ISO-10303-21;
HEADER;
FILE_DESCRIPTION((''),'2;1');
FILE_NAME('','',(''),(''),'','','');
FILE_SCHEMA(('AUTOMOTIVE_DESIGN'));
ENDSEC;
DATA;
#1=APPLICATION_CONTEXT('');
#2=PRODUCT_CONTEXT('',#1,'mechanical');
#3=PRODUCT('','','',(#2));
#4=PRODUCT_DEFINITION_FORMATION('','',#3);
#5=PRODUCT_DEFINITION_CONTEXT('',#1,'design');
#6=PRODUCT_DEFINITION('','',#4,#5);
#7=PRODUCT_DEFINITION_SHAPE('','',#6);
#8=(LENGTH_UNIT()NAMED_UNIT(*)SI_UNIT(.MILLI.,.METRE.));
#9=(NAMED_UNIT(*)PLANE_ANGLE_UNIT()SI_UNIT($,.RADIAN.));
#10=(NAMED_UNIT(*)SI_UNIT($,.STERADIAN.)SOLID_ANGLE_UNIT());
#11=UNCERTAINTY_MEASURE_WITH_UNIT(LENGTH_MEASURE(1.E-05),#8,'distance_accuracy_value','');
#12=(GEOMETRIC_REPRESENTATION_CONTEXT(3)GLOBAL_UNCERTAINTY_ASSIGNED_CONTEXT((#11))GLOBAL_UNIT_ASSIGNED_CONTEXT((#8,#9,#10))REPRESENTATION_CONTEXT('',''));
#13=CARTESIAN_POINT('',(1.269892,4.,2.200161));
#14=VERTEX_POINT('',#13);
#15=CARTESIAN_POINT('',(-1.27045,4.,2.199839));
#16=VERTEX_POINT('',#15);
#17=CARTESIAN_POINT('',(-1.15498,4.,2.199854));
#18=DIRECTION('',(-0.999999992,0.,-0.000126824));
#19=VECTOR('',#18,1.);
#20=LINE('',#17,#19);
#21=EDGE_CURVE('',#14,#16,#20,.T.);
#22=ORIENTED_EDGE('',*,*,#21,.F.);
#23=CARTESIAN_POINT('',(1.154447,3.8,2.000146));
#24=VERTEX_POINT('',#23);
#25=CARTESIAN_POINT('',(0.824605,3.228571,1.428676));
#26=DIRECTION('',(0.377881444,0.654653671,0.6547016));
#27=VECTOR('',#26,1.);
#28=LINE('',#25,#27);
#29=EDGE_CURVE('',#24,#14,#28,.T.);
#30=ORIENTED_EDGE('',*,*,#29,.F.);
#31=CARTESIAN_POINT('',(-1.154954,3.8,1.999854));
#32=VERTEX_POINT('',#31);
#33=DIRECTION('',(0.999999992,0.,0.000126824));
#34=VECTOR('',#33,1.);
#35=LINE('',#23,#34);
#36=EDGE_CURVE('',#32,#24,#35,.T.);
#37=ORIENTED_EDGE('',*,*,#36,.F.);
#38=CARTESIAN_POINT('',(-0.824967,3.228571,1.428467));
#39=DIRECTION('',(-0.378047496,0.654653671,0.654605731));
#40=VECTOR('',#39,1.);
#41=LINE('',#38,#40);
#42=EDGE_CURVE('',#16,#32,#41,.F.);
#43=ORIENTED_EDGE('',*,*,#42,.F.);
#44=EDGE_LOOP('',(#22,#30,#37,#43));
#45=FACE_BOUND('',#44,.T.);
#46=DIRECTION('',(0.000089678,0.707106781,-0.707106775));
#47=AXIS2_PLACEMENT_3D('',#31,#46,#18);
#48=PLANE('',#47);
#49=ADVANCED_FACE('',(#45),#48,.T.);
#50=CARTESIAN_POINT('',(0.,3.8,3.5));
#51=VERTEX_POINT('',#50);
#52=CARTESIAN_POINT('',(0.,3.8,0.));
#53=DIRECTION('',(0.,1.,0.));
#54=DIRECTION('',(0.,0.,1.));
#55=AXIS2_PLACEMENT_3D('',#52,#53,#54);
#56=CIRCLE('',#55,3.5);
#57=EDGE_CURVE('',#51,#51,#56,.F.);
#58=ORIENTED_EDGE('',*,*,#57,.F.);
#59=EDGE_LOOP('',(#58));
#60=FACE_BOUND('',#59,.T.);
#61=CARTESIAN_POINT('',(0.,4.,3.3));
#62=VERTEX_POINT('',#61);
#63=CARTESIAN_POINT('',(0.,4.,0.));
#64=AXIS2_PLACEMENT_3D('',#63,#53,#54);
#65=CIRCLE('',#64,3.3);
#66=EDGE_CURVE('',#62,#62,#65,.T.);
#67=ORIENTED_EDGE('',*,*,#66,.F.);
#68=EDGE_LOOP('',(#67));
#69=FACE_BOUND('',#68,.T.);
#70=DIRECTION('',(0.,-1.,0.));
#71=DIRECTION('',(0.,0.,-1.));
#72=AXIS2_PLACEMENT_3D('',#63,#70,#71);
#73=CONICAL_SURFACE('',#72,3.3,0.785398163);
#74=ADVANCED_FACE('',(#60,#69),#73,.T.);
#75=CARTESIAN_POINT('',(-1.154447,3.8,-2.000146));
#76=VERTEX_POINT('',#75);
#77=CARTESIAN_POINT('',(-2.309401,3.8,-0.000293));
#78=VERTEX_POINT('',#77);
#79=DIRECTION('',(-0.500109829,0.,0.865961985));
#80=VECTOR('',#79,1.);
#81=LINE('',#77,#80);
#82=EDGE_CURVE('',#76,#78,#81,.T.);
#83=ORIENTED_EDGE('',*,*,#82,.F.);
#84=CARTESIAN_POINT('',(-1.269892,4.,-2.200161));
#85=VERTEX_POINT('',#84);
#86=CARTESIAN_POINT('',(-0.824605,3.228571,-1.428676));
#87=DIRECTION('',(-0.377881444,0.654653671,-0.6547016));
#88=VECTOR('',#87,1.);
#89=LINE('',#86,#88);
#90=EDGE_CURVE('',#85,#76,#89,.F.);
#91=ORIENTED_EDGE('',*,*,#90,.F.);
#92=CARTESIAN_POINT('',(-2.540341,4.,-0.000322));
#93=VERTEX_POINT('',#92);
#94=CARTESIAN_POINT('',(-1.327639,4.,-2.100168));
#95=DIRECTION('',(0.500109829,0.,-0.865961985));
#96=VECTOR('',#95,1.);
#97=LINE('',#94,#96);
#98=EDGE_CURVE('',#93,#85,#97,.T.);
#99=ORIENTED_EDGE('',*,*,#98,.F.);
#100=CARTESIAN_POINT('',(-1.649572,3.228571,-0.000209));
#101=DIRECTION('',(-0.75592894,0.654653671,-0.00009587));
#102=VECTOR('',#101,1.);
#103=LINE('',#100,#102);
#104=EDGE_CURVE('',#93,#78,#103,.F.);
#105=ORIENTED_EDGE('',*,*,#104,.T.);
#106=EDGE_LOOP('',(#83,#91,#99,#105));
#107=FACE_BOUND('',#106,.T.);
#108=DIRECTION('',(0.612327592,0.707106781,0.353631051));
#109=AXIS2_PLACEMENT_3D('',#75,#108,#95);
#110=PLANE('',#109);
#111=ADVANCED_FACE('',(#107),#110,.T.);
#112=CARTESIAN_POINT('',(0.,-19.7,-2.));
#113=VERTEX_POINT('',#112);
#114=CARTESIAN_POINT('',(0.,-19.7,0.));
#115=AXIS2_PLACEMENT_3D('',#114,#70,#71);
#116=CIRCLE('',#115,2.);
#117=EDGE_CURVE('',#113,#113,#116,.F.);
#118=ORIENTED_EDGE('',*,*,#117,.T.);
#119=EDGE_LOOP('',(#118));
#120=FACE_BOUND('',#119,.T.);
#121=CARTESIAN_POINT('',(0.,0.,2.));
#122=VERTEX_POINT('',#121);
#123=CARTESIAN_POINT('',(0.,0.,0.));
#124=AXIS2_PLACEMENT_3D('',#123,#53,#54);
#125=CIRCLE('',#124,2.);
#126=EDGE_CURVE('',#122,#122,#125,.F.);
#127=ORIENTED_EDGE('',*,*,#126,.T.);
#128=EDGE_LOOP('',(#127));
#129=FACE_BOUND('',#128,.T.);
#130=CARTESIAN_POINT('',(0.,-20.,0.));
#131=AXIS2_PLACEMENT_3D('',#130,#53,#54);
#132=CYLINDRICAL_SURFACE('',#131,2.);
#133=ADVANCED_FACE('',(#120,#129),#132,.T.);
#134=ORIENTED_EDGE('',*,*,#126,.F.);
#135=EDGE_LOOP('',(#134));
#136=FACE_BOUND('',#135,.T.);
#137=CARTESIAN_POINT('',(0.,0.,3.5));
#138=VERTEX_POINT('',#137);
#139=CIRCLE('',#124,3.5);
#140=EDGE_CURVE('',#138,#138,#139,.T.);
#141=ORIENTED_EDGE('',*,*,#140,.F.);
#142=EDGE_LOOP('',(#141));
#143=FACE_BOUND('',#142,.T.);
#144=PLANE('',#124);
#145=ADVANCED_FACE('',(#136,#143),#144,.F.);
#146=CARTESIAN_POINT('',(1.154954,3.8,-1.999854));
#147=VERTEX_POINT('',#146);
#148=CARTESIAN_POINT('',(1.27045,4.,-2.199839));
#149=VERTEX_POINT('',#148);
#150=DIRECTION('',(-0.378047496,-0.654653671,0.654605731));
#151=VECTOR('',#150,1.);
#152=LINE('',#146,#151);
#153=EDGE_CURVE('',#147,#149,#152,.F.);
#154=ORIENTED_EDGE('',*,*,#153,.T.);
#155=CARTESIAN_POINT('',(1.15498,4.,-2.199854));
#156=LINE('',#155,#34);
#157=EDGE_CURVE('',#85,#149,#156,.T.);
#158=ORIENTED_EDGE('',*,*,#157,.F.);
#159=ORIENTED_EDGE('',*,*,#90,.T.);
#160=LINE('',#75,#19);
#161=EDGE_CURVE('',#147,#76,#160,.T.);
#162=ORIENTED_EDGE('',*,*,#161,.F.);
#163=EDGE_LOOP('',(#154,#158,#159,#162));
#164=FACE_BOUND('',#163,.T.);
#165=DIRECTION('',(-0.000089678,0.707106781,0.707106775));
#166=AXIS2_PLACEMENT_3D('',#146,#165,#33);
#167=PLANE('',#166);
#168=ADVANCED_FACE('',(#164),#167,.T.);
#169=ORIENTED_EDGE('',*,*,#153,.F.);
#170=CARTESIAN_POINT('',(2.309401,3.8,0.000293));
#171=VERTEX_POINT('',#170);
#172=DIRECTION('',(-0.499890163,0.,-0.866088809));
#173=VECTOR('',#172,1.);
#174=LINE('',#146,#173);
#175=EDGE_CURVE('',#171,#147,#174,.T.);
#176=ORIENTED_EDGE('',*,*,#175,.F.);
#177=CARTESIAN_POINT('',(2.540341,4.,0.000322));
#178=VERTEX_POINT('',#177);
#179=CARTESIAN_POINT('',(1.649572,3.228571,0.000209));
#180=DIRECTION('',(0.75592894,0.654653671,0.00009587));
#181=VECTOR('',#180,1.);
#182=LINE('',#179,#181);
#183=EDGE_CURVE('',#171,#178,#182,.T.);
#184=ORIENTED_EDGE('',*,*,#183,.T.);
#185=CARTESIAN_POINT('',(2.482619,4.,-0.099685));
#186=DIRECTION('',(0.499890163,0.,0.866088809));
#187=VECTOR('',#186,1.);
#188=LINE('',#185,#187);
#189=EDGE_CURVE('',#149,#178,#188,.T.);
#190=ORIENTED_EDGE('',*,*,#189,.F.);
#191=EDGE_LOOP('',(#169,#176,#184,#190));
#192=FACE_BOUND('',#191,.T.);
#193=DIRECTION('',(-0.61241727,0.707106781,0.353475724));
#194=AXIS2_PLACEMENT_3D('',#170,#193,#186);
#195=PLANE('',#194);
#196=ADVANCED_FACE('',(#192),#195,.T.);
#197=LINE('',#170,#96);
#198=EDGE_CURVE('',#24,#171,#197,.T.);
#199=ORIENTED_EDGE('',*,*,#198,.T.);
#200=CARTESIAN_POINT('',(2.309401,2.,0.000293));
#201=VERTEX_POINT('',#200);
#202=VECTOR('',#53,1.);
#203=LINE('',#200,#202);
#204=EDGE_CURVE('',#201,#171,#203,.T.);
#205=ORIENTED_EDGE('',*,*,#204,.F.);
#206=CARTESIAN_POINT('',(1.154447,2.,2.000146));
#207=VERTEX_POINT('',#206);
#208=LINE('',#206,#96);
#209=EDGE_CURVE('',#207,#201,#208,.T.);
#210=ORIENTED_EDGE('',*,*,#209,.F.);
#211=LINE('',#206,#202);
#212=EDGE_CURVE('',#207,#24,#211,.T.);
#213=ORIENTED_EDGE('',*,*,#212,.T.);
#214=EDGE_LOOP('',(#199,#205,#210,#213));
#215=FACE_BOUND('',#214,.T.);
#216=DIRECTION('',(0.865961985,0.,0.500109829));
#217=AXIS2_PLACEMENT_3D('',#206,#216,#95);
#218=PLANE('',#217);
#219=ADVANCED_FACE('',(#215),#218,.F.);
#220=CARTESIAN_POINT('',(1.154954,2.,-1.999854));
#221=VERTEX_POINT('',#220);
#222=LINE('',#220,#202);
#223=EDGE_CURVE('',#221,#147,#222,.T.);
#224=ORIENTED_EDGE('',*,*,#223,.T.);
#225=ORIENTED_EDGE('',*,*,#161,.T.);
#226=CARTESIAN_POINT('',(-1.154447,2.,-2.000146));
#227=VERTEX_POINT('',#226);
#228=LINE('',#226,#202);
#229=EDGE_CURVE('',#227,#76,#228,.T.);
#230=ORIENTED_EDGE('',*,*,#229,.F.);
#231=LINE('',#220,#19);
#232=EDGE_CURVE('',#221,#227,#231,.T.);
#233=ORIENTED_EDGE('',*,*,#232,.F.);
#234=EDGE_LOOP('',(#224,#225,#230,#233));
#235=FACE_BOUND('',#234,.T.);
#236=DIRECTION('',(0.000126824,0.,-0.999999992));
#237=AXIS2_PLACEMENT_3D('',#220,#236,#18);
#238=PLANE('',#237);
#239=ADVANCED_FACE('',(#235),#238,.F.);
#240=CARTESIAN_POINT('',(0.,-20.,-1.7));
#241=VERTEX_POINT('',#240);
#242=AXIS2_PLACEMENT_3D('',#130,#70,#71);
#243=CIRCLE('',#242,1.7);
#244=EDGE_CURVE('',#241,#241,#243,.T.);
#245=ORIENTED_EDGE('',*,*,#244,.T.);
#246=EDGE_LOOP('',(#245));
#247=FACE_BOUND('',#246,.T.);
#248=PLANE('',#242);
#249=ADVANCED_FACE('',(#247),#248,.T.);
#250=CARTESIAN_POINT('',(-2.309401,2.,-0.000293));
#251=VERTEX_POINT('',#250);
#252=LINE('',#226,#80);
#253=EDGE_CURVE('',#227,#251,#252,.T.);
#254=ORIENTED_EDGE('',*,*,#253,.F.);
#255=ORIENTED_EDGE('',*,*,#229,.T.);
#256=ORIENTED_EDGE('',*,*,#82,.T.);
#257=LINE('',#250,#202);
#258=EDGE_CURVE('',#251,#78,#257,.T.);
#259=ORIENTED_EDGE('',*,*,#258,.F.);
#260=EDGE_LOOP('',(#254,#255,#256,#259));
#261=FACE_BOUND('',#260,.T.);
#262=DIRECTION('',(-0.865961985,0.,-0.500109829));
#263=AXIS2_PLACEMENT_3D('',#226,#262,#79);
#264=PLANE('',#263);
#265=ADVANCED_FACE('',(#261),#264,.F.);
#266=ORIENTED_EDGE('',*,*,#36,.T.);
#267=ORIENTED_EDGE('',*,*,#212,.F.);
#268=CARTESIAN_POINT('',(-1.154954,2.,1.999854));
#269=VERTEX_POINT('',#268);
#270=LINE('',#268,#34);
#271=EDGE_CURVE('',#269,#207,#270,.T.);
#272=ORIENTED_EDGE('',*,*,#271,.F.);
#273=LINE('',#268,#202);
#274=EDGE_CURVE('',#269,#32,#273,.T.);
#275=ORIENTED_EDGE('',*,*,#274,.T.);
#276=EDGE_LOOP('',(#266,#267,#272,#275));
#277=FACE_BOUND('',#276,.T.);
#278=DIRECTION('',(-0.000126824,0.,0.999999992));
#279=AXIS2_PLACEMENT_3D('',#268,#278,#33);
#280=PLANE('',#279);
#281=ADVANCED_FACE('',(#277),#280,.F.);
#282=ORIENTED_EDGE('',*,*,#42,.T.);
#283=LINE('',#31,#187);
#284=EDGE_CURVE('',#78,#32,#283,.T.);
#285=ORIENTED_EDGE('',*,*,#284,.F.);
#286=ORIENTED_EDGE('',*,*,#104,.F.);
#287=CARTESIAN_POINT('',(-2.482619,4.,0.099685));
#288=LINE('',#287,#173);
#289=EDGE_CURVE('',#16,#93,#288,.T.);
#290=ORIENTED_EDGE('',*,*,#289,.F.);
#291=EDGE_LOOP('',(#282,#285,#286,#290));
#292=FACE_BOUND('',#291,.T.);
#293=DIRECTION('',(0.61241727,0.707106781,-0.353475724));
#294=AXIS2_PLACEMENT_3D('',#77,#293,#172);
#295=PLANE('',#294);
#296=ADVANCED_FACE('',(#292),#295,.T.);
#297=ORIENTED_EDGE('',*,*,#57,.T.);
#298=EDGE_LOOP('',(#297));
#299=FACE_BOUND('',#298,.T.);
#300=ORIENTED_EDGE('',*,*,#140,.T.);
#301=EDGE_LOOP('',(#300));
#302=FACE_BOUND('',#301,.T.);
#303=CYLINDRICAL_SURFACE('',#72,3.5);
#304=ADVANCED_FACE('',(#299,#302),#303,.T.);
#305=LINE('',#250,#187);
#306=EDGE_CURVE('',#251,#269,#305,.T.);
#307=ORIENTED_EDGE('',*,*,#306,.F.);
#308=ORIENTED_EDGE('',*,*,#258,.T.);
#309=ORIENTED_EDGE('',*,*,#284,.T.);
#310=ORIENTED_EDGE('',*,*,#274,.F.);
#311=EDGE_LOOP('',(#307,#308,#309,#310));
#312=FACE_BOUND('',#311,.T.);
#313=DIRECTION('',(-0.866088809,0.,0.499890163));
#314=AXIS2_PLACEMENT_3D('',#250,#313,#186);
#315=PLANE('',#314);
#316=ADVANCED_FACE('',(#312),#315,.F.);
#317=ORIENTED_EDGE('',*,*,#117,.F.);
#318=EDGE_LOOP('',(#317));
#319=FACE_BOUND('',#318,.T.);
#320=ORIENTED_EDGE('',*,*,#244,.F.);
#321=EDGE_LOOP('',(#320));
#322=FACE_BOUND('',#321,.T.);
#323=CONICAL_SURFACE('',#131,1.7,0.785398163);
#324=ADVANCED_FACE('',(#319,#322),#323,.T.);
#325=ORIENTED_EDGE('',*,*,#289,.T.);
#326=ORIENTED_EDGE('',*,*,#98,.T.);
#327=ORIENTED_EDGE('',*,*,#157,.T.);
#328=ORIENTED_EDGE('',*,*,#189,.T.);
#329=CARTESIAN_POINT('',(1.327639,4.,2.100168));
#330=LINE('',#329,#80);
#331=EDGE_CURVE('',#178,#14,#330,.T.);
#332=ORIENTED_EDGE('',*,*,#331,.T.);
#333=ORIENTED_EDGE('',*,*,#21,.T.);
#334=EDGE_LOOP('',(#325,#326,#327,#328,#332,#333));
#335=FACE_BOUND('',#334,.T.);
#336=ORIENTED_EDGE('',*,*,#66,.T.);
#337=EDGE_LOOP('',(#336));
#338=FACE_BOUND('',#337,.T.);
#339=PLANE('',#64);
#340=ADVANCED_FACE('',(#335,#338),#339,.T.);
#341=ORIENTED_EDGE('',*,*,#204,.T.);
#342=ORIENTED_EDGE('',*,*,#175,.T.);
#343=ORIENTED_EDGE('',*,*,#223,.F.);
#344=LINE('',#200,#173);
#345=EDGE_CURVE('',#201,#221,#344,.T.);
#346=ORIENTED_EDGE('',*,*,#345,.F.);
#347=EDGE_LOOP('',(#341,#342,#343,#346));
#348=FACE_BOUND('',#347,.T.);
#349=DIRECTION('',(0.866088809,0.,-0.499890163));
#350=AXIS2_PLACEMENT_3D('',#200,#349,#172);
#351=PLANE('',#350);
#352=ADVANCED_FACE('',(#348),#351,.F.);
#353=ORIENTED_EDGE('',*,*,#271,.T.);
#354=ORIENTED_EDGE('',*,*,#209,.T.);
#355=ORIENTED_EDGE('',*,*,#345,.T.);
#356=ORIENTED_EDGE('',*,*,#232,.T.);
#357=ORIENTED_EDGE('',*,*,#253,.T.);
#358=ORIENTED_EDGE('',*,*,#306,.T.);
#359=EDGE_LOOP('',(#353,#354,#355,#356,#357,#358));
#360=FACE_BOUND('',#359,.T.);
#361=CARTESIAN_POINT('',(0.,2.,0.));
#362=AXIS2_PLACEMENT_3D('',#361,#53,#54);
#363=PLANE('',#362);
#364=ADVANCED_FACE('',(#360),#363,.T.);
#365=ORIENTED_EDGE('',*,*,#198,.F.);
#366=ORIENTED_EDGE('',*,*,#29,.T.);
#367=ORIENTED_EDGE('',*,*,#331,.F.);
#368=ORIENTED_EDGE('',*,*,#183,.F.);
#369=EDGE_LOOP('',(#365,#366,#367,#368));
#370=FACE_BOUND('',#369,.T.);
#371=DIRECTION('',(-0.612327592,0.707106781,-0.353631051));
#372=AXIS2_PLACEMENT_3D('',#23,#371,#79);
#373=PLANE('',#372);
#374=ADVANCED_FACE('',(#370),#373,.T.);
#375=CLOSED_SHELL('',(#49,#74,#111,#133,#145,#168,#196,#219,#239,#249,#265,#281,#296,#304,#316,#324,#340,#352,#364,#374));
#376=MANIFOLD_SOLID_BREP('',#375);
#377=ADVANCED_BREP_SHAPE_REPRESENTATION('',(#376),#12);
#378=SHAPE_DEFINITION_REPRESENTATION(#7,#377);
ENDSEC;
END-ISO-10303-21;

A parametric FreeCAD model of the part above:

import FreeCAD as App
import Part
import Sketcher

V = App.Vector


def edges_at(feature, points):
    """Names of the edges that pass closest to the given points."""
    edges = feature.Shape.Edges
    near = lambda p: min(range(len(edges)), key=lambda i: edges[i].distToShape(Part.Vertex(*p))[0])
    return sorted({f"Edge{near(p) + 1}" for p in points})

doc = App.newDocument("Part")
body = doc.addObject("PartDesign::Body", "Body")

sketch1 = doc.addObject("Sketcher::SketchObject", "Sketch")
body.addObject(sketch1)
sketch1.AttachmentSupport = (doc.XZ_Plane, [""])
sketch1.MapMode = "FlatFace"
sketch1.addGeometry(Part.Circle(V(0, 0, 0), V(0, 0, 1), 3.5), False)
sketch1.addConstraint(Sketcher.Constraint("Coincident", 0, 3, -1, 1))
sketch1.addConstraint(Sketcher.Constraint("Diameter", 0, 7.0))
pad1 = doc.addObject("PartDesign::Pad", "Pad")
body.addObject(pad1)
pad1.Profile = sketch1
pad1.Length = 4
pad1.Reversed = True

sketch2 = doc.addObject("Sketcher::SketchObject", "Sketch001")
body.addObject(sketch2)
sketch2.AttachmentSupport = (doc.XZ_Plane, [""])
sketch2.MapMode = "FlatFace"
sketch2.addGeometry(Part.Circle(V(0, 0, 0), V(0, 0, 1), 2), False)
sketch2.addConstraint(Sketcher.Constraint("Coincident", 0, 3, -1, 1))
sketch2.addConstraint(Sketcher.Constraint("Diameter", 0, 4.0))
pad2 = doc.addObject("PartDesign::Pad", "Pad001")
body.addObject(pad2)
pad2.Profile = sketch2
pad2.Length = 20

sketch3 = doc.addObject("Sketcher::SketchObject", "Sketch002")
body.addObject(sketch3)
sketch3.AttachmentSupport = (doc.XZ_Plane, [""])
sketch3.MapMode = "FlatFace"
sketch3.AttachmentOffset = App.Placement(V(0, 0, -4), App.Rotation())
sketch3.addGeometry(Part.LineSegment(V(1.2, -2, 0), V(-1.2, -2, 0)), False)
sketch3.addGeometry(Part.LineSegment(V(-1.2, -2, 0), V(-2.3, 0, 0)), False)
sketch3.addGeometry(Part.LineSegment(V(-2.3, 0, 0), V(-1.2, 2, 0)), False)
sketch3.addGeometry(Part.LineSegment(V(-1.2, 2, 0), V(1.2, 2, 0)), False)
sketch3.addGeometry(Part.LineSegment(V(1.2, 2, 0), V(2.3, 0, 0)), False)
sketch3.addGeometry(Part.LineSegment(V(2.3, 0, 0), V(1.2, -2, 0)), False)
sketch3.addConstraint(Sketcher.Constraint("Coincident", 0, 2, 1, 1))
sketch3.addConstraint(Sketcher.Constraint("Coincident", 1, 2, 2, 1))
sketch3.addConstraint(Sketcher.Constraint("Coincident", 2, 2, 3, 1))
sketch3.addConstraint(Sketcher.Constraint("Coincident", 3, 2, 4, 1))
sketch3.addConstraint(Sketcher.Constraint("Coincident", 4, 2, 5, 1))
sketch3.addConstraint(Sketcher.Constraint("Coincident", 5, 2, 0, 1))
sketch3.addConstraint(Sketcher.Constraint("Symmetric", 0, 2, 3, 2, -1, 1))
sketch3.addConstraint(Sketcher.Constraint("Symmetric", 1, 2, 4, 2, -1, 1))
sketch3.addConstraint(Sketcher.Constraint("Symmetric", 2, 2, 5, 2, -1, 1))
sketch3.addConstraint(Sketcher.Constraint("Equal", 0, 1))
sketch3.addConstraint(Sketcher.Constraint("Equal", 1, 2))
sketch3.addConstraint(Sketcher.Constraint("DistanceY", 0, 2, 2, 2, 4.0))
sketch3.addConstraint(Sketcher.Constraint("Distance", 0, 2.309401))
sketch3.addConstraint(Sketcher.Constraint("DistanceY", 1, 2, 3, 2, 2.000439))
sketch3.addConstraint(Sketcher.Constraint("DistanceX", 2, 2, 5, 2, 2.309908))
pocket1 = doc.addObject("PartDesign::Pocket", "Pocket")
body.addObject(pocket1)
pocket1.Profile = sketch3
pocket1.Length = 2
pocket1.Reversed = True
doc.recompute()

chamfer = doc.addObject("PartDesign::Chamfer", "Chamfer")
body.addObject(chamfer)
chamfer.Base = (pocket1, edges_at(pocket1, [
    (1.732, 4, -1),
    (0, 4, -2),
    (-1.732, 4, -1),
    (-1.732, 4, 1),
    (0, 4, 2),
    (1.732, 4, 1),
    (-3.5, 4, 0),
]))
chamfer.Size = 0.2
doc.recompute()

chamfer2 = doc.addObject("PartDesign::Chamfer", "Chamfer001")
body.addObject(chamfer2)
chamfer2.Base = (chamfer, edges_at(chamfer, [(-2, -20, 0)]))
chamfer2.Size = 0.3

doc.recompute()
